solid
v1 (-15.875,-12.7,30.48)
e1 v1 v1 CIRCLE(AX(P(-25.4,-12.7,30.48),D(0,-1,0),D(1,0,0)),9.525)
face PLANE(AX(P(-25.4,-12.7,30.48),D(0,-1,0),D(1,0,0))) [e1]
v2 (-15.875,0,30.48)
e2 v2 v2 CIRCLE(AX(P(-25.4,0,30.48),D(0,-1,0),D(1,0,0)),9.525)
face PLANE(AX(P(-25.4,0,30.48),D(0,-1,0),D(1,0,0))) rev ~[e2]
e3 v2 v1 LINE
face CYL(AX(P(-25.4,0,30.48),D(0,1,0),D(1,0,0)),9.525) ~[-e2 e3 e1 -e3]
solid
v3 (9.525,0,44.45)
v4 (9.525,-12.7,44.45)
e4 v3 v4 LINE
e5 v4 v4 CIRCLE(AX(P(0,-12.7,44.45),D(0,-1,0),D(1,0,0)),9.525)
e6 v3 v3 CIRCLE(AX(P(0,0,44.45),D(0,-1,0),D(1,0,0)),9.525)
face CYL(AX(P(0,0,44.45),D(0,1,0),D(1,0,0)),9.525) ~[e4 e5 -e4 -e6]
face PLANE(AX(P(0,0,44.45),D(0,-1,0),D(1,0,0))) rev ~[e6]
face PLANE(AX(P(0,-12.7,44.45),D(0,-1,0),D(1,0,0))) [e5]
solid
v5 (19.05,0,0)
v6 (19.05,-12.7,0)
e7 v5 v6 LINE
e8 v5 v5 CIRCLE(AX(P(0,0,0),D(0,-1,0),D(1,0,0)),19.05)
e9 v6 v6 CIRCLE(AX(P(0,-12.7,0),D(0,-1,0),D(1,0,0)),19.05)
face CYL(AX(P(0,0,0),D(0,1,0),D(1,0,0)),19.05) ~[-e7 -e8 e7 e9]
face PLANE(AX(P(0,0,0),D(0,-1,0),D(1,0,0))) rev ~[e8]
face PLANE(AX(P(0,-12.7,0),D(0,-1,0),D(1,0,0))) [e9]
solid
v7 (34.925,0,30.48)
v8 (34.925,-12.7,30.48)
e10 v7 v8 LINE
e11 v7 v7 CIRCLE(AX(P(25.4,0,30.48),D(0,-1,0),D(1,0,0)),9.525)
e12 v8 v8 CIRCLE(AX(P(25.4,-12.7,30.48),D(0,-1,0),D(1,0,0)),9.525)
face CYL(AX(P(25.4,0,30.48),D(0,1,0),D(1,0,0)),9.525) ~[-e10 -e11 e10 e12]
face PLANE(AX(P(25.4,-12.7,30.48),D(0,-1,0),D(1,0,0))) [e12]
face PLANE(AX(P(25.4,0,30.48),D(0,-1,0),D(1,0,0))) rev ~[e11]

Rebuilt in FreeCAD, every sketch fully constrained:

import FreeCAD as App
import Part
import Sketcher
Q = App.Units.Quantity

doc = App.newDocument("Part")
body = doc.addObject("PartDesign::Body", "Body")
body.AllowCompound = True

sketch1 = body.newObject("Sketcher::SketchObject", "Sketch")
sketch1.AttachmentSupport = (doc.getObject("XZ_Plane"), [""])
sketch1.MapMode = "FlatFace"
sketch1.addGeometry(Part.Circle(App.Vector(0, 0, 0), App.Vector(0, 0, 1), 19), False)
sketch1.addGeometry(Part.Circle(App.Vector(-25, 30, 0), App.Vector(0, 0, 1), 10), False)
sketch1.addGeometry(Part.Circle(App.Vector(0, 44, 0), App.Vector(0, 0, 1), 10), False)
sketch1.addGeometry(Part.Circle(App.Vector(25, 30, 0), App.Vector(0, 0, 1), 10), False)
sketch1.addConstraint(Sketcher.Constraint("Coincident", 0, 3, -1, 1))
sketch1.addConstraint(Sketcher.Constraint("Equal", 1, 2))
sketch1.addConstraint(Sketcher.Constraint("Equal", 2, 3))
sketch1.addConstraint(Sketcher.Constraint("Symmetric", 1, 3, 3, 3, -2))
sketch1.addConstraint(Sketcher.Constraint("PointOnObject", 2, 3, -2))
sketch1.addConstraint(Sketcher.Constraint("Diameter", 0, Q("1.5 in")))
sketch1.addConstraint(Sketcher.Constraint("Diameter", 1, Q("0.75 in")))
sketch1.addConstraint(Sketcher.Constraint("DistanceX", 1, 3, -1, 1, Q("1 in")))
sketch1.addConstraint(Sketcher.Constraint("DistanceY", -1, 1, 1, 3, Q("1.2 in")))
sketch1.addConstraint(Sketcher.Constraint("DistanceY", -1, 1, 2, 3, Q("1.75 in")))
pad1 = body.newObject("PartDesign::Pad", "Pad")
pad1.Profile = sketch1
pad1.Length = Q("0.5 in")

doc.recompute()
